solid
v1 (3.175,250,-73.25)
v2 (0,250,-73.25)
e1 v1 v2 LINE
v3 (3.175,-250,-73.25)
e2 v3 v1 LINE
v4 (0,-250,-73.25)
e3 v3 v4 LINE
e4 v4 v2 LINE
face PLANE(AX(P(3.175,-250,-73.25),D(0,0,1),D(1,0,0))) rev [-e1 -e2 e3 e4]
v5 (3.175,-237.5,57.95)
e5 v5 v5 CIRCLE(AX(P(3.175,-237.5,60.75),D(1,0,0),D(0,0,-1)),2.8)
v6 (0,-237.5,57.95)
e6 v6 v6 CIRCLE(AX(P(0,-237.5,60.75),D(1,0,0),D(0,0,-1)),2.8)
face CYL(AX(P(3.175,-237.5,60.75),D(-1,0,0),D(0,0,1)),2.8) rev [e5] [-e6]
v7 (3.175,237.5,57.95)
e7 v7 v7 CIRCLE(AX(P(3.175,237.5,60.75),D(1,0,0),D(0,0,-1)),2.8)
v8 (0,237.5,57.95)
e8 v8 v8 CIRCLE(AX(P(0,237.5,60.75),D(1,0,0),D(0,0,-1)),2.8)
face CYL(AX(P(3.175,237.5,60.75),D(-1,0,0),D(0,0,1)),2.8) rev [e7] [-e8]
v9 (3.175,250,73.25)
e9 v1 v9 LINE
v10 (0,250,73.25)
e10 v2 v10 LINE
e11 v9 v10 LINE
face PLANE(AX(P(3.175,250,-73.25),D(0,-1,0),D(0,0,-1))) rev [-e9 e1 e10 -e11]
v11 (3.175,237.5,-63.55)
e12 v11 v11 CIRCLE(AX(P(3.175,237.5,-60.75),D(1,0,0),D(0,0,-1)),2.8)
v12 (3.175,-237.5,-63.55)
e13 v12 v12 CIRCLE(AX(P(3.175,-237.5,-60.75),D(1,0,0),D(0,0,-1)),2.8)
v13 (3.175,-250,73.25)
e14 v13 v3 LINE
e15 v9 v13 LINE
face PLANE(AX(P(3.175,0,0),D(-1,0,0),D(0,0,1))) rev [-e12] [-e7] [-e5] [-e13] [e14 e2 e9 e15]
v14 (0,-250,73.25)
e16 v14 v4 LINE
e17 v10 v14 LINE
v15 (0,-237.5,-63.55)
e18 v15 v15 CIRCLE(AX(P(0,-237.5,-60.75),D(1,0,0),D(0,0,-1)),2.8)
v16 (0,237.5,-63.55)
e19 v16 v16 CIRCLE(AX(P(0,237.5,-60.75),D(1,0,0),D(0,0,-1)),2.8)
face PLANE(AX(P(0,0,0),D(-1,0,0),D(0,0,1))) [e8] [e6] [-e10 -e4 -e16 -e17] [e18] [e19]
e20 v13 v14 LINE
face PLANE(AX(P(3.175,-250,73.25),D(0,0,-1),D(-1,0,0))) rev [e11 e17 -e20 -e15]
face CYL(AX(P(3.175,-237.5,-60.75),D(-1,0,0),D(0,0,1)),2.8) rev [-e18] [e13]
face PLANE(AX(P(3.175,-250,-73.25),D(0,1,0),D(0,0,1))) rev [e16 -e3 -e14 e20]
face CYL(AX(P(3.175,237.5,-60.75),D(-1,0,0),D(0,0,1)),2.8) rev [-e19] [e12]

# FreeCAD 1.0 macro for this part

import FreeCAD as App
import Part
import Sketcher
Q = App.Units.Quantity


def add_polygon(sketch, points):
    """Adds a closed chain of lines whose ends are joined by coincident constraints."""
    first, n = sketch.GeometryCount, len(points)
    for a, b in zip(points, points[1:] + points[:1]):
        sketch.addGeometry(Part.LineSegment(App.Vector(*a, 0), App.Vector(*b, 0)), False)
    for i in range(n):
        sketch.addConstraint(Sketcher.Constraint("Coincident", first + i, 2, first + (i + 1) % n, 1))

doc = App.newDocument("Part")
body = doc.addObject("PartDesign::Body", "Body")

# Sketch on YZ plane
sketch1 = body.newObject("Sketcher::SketchObject", "Sketch")
sketch1.AttachmentSupport = (doc.getObject("YZ_Plane"), [""])
sketch1.MapMode = "FlatFace"
add_polygon(sketch1, [(-250, 73.2), (-250, -73.2), (250, -73.2), (250, 73.2)])  # lines 0-3
sketch1.addGeometry(Part.Circle(App.Vector(-237.5, -60.8, 0), App.Vector(0, 0, 1), 2.8), False)  # 4
sketch1.addGeometry(Part.Circle(App.Vector(237.5, -60.8, 0), App.Vector(0, 0, 1), 2.8), False)  # 5
sketch1.addGeometry(Part.Circle(App.Vector(-237.5, 60.8, 0), App.Vector(0, 0, 1), 2.8), False)  # 6
sketch1.addGeometry(Part.Circle(App.Vector(237.5, 60.8, 0), App.Vector(0, 0, 1), 2.8), False)  # 7
sketch1.addConstraint(Sketcher.Constraint("Vertical", 0))
sketch1.addConstraint(Sketcher.Constraint("Horizontal", 1))
sketch1.addConstraint(Sketcher.Constraint("Vertical", 2))
sketch1.addConstraint(Sketcher.Constraint("Horizontal", 3))
sketch1.addConstraint(Sketcher.Constraint("Equal", 4, 5))
sketch1.addConstraint(Sketcher.Constraint("Equal", 5, 6))
sketch1.addConstraint(Sketcher.Constraint("Equal", 6, 7))
sketch1.addConstraint(Sketcher.Constraint("Symmetric", 5, 3, 6, 3, -1, 1))
sketch1.addConstraint(Sketcher.Constraint("Symmetric", 4, 3, 7, 3, -1, 1))
sketch1.addConstraint(Sketcher.Constraint("Symmetric", 0, 2, 2, 2, -1, 1))
sketch1.addConstraint(Sketcher.Constraint("Symmetric", 4, 3, 5, 3, -2))
sketch1.addConstraint(Sketcher.Constraint("Diameter", 4, Q("5.6 mm")))
sketch1.addConstraint(Sketcher.Constraint("DistanceX", 1, 1, 1, 2, Q("500 mm")))
sketch1.addConstraint(Sketcher.Constraint("DistanceY", 0, 2, 0, 1, Q("146.5 mm")))
sketch1.addConstraint(Sketcher.Constraint("DistanceX", 4, 3, 5, 3, Q("475 mm")))
sketch1.addConstraint(Sketcher.Constraint("DistanceY", 0, 2, 6, 3, Q("134 mm")))
pad1 = body.newObject("PartDesign::Pad", "Pad")
pad1.Profile = sketch1
pad1.Length = 3.175

doc.recompute()
